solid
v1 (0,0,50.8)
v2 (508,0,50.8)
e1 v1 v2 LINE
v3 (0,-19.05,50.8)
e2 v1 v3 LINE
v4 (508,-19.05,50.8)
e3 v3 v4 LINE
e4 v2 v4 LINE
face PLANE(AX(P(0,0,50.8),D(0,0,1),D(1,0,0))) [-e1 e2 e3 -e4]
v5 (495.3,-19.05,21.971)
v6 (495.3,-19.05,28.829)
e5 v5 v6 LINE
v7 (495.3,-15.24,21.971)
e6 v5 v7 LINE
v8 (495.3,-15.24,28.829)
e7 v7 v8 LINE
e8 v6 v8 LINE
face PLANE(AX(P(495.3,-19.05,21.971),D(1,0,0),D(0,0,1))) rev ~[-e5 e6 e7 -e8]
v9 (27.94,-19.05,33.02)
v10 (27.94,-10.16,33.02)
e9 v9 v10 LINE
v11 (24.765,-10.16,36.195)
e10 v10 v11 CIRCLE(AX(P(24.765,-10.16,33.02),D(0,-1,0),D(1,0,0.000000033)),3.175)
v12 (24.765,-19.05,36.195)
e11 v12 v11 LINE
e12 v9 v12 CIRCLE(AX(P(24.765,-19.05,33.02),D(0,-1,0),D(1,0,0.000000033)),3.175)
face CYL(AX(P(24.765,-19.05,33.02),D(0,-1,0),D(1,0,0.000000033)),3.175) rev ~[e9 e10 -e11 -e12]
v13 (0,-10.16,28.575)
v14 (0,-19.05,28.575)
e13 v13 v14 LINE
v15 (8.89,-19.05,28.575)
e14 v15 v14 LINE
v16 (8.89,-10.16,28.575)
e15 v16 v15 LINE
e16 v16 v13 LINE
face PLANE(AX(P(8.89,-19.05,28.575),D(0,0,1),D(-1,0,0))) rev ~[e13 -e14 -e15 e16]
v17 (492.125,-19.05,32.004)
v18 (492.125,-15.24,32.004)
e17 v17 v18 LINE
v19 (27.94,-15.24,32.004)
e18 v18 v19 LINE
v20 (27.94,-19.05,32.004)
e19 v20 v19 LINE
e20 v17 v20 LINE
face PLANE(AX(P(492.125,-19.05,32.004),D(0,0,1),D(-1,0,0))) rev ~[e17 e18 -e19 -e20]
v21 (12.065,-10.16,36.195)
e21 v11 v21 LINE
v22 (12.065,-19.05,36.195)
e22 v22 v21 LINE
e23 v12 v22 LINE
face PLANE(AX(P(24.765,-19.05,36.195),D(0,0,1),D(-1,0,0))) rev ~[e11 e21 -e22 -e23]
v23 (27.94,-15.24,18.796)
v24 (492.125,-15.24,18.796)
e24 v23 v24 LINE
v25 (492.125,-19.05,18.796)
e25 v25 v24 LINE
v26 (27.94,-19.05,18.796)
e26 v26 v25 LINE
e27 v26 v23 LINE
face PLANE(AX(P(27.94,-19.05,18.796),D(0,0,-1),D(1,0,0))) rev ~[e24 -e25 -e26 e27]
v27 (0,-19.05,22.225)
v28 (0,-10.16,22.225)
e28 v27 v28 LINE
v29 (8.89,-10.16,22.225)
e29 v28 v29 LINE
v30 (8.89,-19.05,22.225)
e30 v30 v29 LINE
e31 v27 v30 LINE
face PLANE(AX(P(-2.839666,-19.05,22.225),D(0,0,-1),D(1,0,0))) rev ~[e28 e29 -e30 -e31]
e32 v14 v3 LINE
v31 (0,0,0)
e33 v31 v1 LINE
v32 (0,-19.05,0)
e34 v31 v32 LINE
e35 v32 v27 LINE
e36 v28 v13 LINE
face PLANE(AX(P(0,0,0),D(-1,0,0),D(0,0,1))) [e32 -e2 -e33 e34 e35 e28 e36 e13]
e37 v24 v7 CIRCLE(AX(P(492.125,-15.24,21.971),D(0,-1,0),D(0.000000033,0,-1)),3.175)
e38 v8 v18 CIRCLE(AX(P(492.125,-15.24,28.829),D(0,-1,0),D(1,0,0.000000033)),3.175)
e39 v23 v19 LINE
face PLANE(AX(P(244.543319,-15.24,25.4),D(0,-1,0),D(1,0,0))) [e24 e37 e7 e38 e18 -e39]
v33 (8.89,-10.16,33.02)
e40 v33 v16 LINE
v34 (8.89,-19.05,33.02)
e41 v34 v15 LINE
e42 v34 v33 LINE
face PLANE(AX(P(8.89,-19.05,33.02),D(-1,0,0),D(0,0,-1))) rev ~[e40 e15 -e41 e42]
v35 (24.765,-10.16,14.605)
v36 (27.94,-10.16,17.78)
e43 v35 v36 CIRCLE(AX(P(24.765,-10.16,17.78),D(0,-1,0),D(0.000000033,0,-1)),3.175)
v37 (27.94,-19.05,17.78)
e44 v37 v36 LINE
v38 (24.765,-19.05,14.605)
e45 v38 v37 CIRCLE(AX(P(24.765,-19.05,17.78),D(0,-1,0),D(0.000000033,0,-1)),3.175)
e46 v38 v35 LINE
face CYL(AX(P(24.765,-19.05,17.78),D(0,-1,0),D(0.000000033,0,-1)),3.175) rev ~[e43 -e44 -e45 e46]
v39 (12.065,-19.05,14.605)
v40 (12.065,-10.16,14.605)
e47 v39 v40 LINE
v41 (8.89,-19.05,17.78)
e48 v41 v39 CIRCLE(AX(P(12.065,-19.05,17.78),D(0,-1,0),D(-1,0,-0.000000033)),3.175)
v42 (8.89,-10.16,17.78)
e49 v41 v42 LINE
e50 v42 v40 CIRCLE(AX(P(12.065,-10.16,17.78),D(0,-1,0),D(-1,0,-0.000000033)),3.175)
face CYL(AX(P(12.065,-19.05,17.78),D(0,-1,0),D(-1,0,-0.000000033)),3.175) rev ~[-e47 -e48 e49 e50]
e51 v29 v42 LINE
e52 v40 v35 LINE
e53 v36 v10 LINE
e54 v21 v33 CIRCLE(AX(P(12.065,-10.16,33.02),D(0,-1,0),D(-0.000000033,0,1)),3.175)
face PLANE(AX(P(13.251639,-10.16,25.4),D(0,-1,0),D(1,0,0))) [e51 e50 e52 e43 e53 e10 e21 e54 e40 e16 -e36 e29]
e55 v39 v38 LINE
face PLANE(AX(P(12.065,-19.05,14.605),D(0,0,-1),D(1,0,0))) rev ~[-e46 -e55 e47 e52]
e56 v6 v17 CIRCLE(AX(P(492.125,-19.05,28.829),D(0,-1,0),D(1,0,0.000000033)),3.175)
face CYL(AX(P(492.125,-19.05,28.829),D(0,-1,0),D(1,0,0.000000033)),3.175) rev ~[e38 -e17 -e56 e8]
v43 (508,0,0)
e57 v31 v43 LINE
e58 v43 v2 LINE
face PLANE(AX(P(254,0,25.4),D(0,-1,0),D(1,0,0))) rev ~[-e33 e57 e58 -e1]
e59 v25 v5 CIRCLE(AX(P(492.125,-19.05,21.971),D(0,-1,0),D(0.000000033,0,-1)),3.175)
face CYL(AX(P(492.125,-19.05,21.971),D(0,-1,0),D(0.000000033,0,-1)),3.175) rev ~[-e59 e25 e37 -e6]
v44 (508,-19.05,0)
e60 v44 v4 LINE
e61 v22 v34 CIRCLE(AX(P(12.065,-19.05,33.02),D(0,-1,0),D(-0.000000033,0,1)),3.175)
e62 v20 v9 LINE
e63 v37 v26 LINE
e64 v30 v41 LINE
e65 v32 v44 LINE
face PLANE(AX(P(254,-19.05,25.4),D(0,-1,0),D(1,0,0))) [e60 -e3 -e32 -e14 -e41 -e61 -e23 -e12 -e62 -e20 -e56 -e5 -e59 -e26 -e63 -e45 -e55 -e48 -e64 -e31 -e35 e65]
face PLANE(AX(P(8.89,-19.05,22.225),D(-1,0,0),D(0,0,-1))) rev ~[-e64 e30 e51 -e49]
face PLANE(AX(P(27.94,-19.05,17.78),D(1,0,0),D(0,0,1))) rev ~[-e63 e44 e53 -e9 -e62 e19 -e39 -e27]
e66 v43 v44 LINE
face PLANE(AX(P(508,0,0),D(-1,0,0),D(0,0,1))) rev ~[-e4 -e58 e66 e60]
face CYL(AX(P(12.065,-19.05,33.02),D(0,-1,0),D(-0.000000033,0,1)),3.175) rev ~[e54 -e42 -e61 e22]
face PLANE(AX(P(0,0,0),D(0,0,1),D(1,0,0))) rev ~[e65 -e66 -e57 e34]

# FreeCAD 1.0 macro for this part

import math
import FreeCAD as App
import Part
import Sketcher

V = App.Vector
Q = App.Units.Quantity

doc = App.newDocument("Part")
params = doc.addObject("Spreadsheet::Sheet", "Params")
for row, (alias, value) in enumerate([
    ("sketch1_width", "20 in"),
    ("sketch1_height", "2 in"),
    ("pad1_length", "0.75 in"),
    ("sketch2_width", "0.5 in"),
    ("sketch2_radius", "0.125 in"),
    ("sketch2_width2", "0.35 in"),
    ("sketch2_height", "0.04 in"),
    ("sketch2_height2", "0.25 in"),
    ("pocket1_length", "0.15 in"),
    ("sketch3_width", "0.5 in"),
    ("sketch3_height", "0.6 in"),
    ("sketch3_radius", "0.125 in"),
    ("pocket2_length", "0.35 in"),
], start=1):
    params.set(f"A{row}", alias)
    params.set(f"B{row}", "=" + value)
    params.setAlias(f"B{row}", alias)

body = doc.addObject("PartDesign::Body", "Body")

# Sketch on XZ plane
sketch1 = body.newObject("Sketcher::SketchObject", "Sketch")
sketch1.AttachmentSupport = (doc.getObject("XZ_Plane"), [""])
sketch1.MapMode = "FlatFace"
sketch1.addGeometry(Part.LineSegment(V(0, 51, 0), V(0, 0, 0)), False)
sketch1.addGeometry(Part.LineSegment(V(0, 0, 0), V(508, 0, 0)), False)
sketch1.addGeometry(Part.LineSegment(V(508, 0, 0), V(508, 51, 0)), False)
sketch1.addGeometry(Part.LineSegment(V(508, 51, 0), V(0, 51, 0)), False)
sketch1.addConstraint(Sketcher.Constraint("Coincident", 0, 2, 1, 1))
sketch1.addConstraint(Sketcher.Constraint("Coincident", 1, 2, 2, 1))
sketch1.addConstraint(Sketcher.Constraint("Coincident", 2, 2, 3, 1))
sketch1.addConstraint(Sketcher.Constraint("Coincident", 3, 2, 0, 1))
sketch1.addConstraint(Sketcher.Constraint("Vertical", 0))
sketch1.addConstraint(Sketcher.Constraint("Horizontal", 1))
sketch1.addConstraint(Sketcher.Constraint("Vertical", 2))
sketch1.addConstraint(Sketcher.Constraint("Horizontal", 3))
sketch1.addConstraint(Sketcher.Constraint("Coincident", 0, 2, -1, 1))
sketch1.addConstraint(Sketcher.Constraint("DistanceX", 1, 1, 1, 2, Q("20 in")))
sketch1.addConstraint(Sketcher.Constraint("DistanceY", 0, 2, 0, 1, Q("2 in")))
sketch1.setExpression("Constraints[9]", "Params.sketch1_width")
sketch1.setExpression("Constraints[10]", "Params.sketch1_height")
pad1 = body.newObject("PartDesign::Pad", "Pad")
pad1.Profile = sketch1
pad1.setExpression("Length", "Params.pad1_length")

# Sketch on XZ plane
sketch2 = body.newObject("Sketcher::SketchObject", "Sketch001")
sketch2.AttachmentSupport = (doc.getObject("XZ_Plane"), [""])
sketch2.MapMode = "FlatFace"
sketch2.AttachmentOffset = App.Placement(V(0, 0, 0.75 * 25.4), App.Rotation())
sketch2.addGeometry(Part.LineSegment(V(492.1, 32, 0), V(27.9, 32, 0)), False)
sketch2.addGeometry(Part.LineSegment(V(27.9, 32, 0), V(27.9, 33, 0)), False)
sketch2.addGeometry(Part.ArcOfCircle(Part.Circle(V(24.8, 33, 0), V(0, 0, 1), 3.2), math.radians(0), math.radians(90)), False)
sketch2.addGeometry(Part.LineSegment(V(24.8, 36.2, 0), V(12.1, 36.2, 0)), False)
sketch2.addGeometry(Part.ArcOfCircle(Part.Circle(V(12.1, 33, 0), V(0, 0, 1), 3.2), math.radians(90), math.radians(180)), False)
sketch2.addGeometry(Part.LineSegment(V(8.9, 33, 0), V(8.9, 28.6, 0)), False)
sketch2.addGeometry(Part.LineSegment(V(8.9, 28.6, 0), V(0, 28.6, 0)), False)
sketch2.addGeometry(Part.LineSegment(V(0, 28.6, 0), V(0, 22.2, 0)), False)
sketch2.addGeometry(Part.LineSegment(V(0, 22.2, 0), V(8.9, 22.2, 0)), False)
sketch2.addGeometry(Part.LineSegment(V(8.9, 22.2, 0), V(8.9, 17.8, 0)), False)
sketch2.addGeometry(Part.ArcOfCircle(Part.Circle(V(12.1, 17.8, 0), V(0, 0, 1), 3.2), math.radians(-180), math.radians(-90)), False)
sketch2.addGeometry(Part.LineSegment(V(12.1, 14.6, 0), V(24.8, 14.6, 0)), False)
sketch2.addGeometry(Part.ArcOfCircle(Part.Circle(V(24.8, 17.8, 0), V(0, 0, 1), 3.2), math.radians(-90), math.radians(0)), False)
sketch2.addGeometry(Part.LineSegment(V(27.9, 17.8, 0), V(27.9, 18.8, 0)), False)
sketch2.addGeometry(Part.LineSegment(V(27.9, 18.8, 0), V(492.1, 18.8, 0)), False)
sketch2.addGeometry(Part.ArcOfCircle(Part.Circle(V(492.1, 22, 0), V(0, 0, 1), 3.2), math.radians(-90), math.radians(0)), False)
sketch2.addGeometry(Part.LineSegment(V(495.3, 22, 0), V(495.3, 28.8, 0)), False)
sketch2.addGeometry(Part.ArcOfCircle(Part.Circle(V(492.1, 28.8, 0), V(0, 0, 1), 3.2), math.radians(0), math.radians(90)), False)
sketch2.addConstraint(Sketcher.Constraint("Coincident", 0, 2, 1, 1))
sketch2.addConstraint(Sketcher.Constraint("Tangent", 1, 2, 2, 1))
sketch2.addConstraint(Sketcher.Constraint("Tangent", 2, 2, 3, 1))
sketch2.addConstraint(Sketcher.Constraint("Tangent", 3, 2, 4, 1))
sketch2.addConstraint(Sketcher.Constraint("Tangent", 4, 2, 5, 1))
sketch2.addConstraint(Sketcher.Constraint("Coincident", 5, 2, 6, 1))
sketch2.addConstraint(Sketcher.Constraint("Coincident", 6, 2, 7, 1))
sketch2.addConstraint(Sketcher.Constraint("Coincident", 7, 2, 8, 1))
sketch2.addConstraint(Sketcher.Constraint("Coincident", 8, 2, 9, 1))
sketch2.addConstraint(Sketcher.Constraint("Tangent", 9, 2, 10, 1))
sketch2.addConstraint(Sketcher.Constraint("Tangent", 10, 2, 11, 1))
sketch2.addConstraint(Sketcher.Constraint("Tangent", 11, 2, 12, 1))
sketch2.addConstraint(Sketcher.Constraint("Tangent", 12, 2, 13, 1))
sketch2.addConstraint(Sketcher.Constraint("Coincident", 13, 2, 14, 1))
sketch2.addConstraint(Sketcher.Constraint("Tangent", 14, 2, 15, 1))
sketch2.addConstraint(Sketcher.Constraint("Tangent", 15, 2, 16, 1))
sketch2.addConstraint(Sketcher.Constraint("Tangent", 16, 2, 17, 1))
sketch2.addConstraint(Sketcher.Constraint("Tangent", 17, 2, 0, 1))
sketch2.addConstraint(Sketcher.Constraint("Horizontal", 0))
sketch2.addConstraint(Sketcher.Constraint("Vertical", 1))
sketch2.addConstraint(Sketcher.Constraint("Horizontal", 3))
sketch2.addConstraint(Sketcher.Constraint("Vertical", 5))
sketch2.addConstraint(Sketcher.Constraint("Horizontal", 6))
sketch2.addConstraint(Sketcher.Constraint("Vertical", 7))
sketch2.addConstraint(Sketcher.Constraint("Horizontal", 8))
sketch2.addConstraint(Sketcher.Constraint("Vertical", 9))
sketch2.addConstraint(Sketcher.Constraint("Horizontal", 11))
sketch2.addConstraint(Sketcher.Constraint("Vertical", 13))
sketch2.addConstraint(Sketcher.Constraint("Horizontal", 14))
sketch2.addConstraint(Sketcher.Constraint("Vertical", 16))
sketch2.addConstraint(Sketcher.Constraint("Equal", 2, 4))
sketch2.addConstraint(Sketcher.Constraint("Equal", 4, 10))
sketch2.addConstraint(Sketcher.Constraint("Equal", 10, 12))
sketch2.addConstraint(Sketcher.Constraint("Equal", 12, 15))
sketch2.addConstraint(Sketcher.Constraint("Equal", 15, 17))
sketch2.addConstraint(Sketcher.Constraint("PointOnObject", 6, 2, -2))
sketch2.addConstraint(Sketcher.Constraint("Vertical", 4, 3, 10, 3))
sketch2.addConstraint(Sketcher.Constraint("Vertical", 2, 3, 12, 3))
sketch2.addConstraint(Sketcher.Constraint("Equal", 5, 9))
sketch2.addConstraint(Sketcher.Constraint("Equal", 1, 13))
sketch2.addConstraint(Sketcher.Constraint("DistanceX", 3, 2, 3, 1, Q("0.5 in")))
sketch2.addConstraint(Sketcher.Constraint("Radius", 2, Q("0.125 in")))
sketch2.addConstraint(Sketcher.Constraint("DistanceX", 6, 2, 6, 1, Q("0.35 in")))
sketch2.addConstraint(Sketcher.Constraint("DistanceY", 1, 1, 1, 2, Q("0.04 in")))
sketch2.addConstraint(Sketcher.Constraint("DistanceY", 7, 2, 7, 1, Q("0.25 in")))
sketch2.addConstraint(Sketcher.Constraint("DistanceY", 16, 1, 16, 2, Q("0.27 in")))
sketch2.addConstraint(Sketcher.Constraint("DistanceY", -1, 1, 2, 3, Q("1.3 in")))
sketch2.addConstraint(Sketcher.Constraint("DistanceX", -1, 1, 15, 2, Q("19.5 in")))
sketch2.setExpression("Constraints[40]", "Params.sketch2_width")
sketch2.setExpression("Constraints[41]", "Params.sketch2_radius")
sketch2.setExpression("Constraints[42]", "Params.sketch2_width2")
sketch2.setExpression("Constraints[43]", "Params.sketch2_height")
sketch2.setExpression("Constraints[44]", "Params.sketch2_height2")
pocket1 = body.newObject("PartDesign::Pocket", "Pocket")
pocket1.Profile = sketch2
pocket1.setExpression("Length", "Params.pocket1_length")

# Sketch on XZ plane
sketch3 = body.newObject("Sketcher::SketchObject", "Sketch002")
sketch3.AttachmentSupport = (doc.getObject("XZ_Plane"), [""])
sketch3.MapMode = "FlatFace"
sketch3.AttachmentOffset = App.Placement(V(0, 0, 0.75 * 25.4), App.Rotation())
sketch3.addGeometry(Part.LineSegment(V(12.1, 14.6, 0), V(24.8, 14.6, 0)), False)
sketch3.addGeometry(Part.ArcOfCircle(Part.Circle(V(24.8, 17.8, 0), V(0, 0, 1), 3.2), math.radians(-90), math.radians(0)), False)
sketch3.addGeometry(Part.LineSegment(V(27.9, 17.8, 0), V(27.9, 33, 0)), False)
sketch3.addGeometry(Part.ArcOfCircle(Part.Circle(V(24.8, 33, 0), V(0, 0, 1), 3.2), math.radians(0), math.radians(90)), False)
sketch3.addGeometry(Part.LineSegment(V(24.8, 36.2, 0), V(12.1, 36.2, 0)), False)
sketch3.addGeometry(Part.ArcOfCircle(Part.Circle(V(12.1, 33, 0), V(0, 0, 1), 3.2), math.radians(90), math.radians(180)), False)
sketch3.addGeometry(Part.LineSegment(V(8.9, 33, 0), V(8.9, 28.6, 0)), False)
sketch3.addGeometry(Part.LineSegment(V(8.9, 28.6, 0), V(-2.8, 28.6, 0)), False)
sketch3.addGeometry(Part.ArcOfCircle(Part.Circle(V(-2.8, 25.4, 0), V(0, 0, 1), 3.2), math.radians(90), math.radians(180)), False)
sketch3.addGeometry(Part.ArcOfCircle(Part.Circle(V(-2.8, 25.4, 0), V(0, 0, 1), 3.2), math.radians(-180), math.radians(-90)), False)
sketch3.addGeometry(Part.LineSegment(V(-2.8, 22.2, 0), V(8.9, 22.2, 0)), False)
sketch3.addGeometry(Part.LineSegment(V(8.9, 22.2, 0), V(8.9, 17.8, 0)), False)
sketch3.addGeometry(Part.ArcOfCircle(Part.Circle(V(12.1, 17.8, 0), V(0, 0, 1), 3.2), math.radians(-180), math.radians(-90)), False)
sketch3.addConstraint(Sketcher.Constraint("Tangent", 0, 2, 1, 1))
sketch3.addConstraint(Sketcher.Constraint("Tangent", 1, 2, 2, 1))
sketch3.addConstraint(Sketcher.Constraint("Tangent", 2, 2, 3, 1))
sketch3.addConstraint(Sketcher.Constraint("Tangent", 3, 2, 4, 1))
sketch3.addConstraint(Sketcher.Constraint("Tangent", 4, 2, 5, 1))
sketch3.addConstraint(Sketcher.Constraint("Tangent", 5, 2, 6, 1))
sketch3.addConstraint(Sketcher.Constraint("Coincident", 6, 2, 7, 1))
sketch3.addConstraint(Sketcher.Constraint("Tangent", 7, 2, 8, 1))
sketch3.addConstraint(Sketcher.Constraint("Tangent", 8, 2, 9, 1))
sketch3.addConstraint(Sketcher.Constraint("Tangent", 9, 2, 10, 1))
sketch3.addConstraint(Sketcher.Constraint("Coincident", 10, 2, 11, 1))
sketch3.addConstraint(Sketcher.Constraint("Tangent", 11, 2, 12, 1))
sketch3.addConstraint(Sketcher.Constraint("Tangent", 12, 2, 0, 1))
sketch3.addConstraint(Sketcher.Constraint("Horizontal", 0))
sketch3.addConstraint(Sketcher.Constraint("Vertical", 2))
sketch3.addConstraint(Sketcher.Constraint("Horizontal", 4))
sketch3.addConstraint(Sketcher.Constraint("Vertical", 6))
sketch3.addConstraint(Sketcher.Constraint("Horizontal", 7))
sketch3.addConstraint(Sketcher.Constraint("Horizontal", 10))
sketch3.addConstraint(Sketcher.Constraint("Vertical", 11))
sketch3.addConstraint(Sketcher.Constraint("Equal", 1, 3))
sketch3.addConstraint(Sketcher.Constraint("Equal", 3, 5))
sketch3.addConstraint(Sketcher.Constraint("Equal", 5, 8))
sketch3.addConstraint(Sketcher.Constraint("Equal", 8, 9))
sketch3.addConstraint(Sketcher.Constraint("Equal", 9, 12))
sketch3.addConstraint(Sketcher.Constraint("Horizontal", 9, 3, 8, 2))
sketch3.addConstraint(Sketcher.Constraint("Vertical", 5, 3, 12, 3))
sketch3.addConstraint(Sketcher.Constraint("Equal", 6, 11))
sketch3.addConstraint(Sketcher.Constraint("DistanceX", 0, 1, 0, 2, Q("0.5 in")))
sketch3.addConstraint(Sketcher.Constraint("DistanceY", 2, 1, 2, 2, Q("0.6 in")))
sketch3.addConstraint(Sketcher.Constraint("DistanceY", -1, 1, 8, 3, Q("1 in")))
sketch3.addConstraint(Sketcher.Constraint("Radius", 1, Q("0.125 in")))
sketch3.addConstraint(Sketcher.Constraint("DistanceX", -1, 1, 1, 2, Q("1.1 in")))
sketch3.addConstraint(Sketcher.Constraint("DistanceX", 7, 2, 7, 1, 11.729666))
sketch3.setExpression("Constraints[28]", "Params.sketch3_width")
sketch3.setExpression("Constraints[29]", "Params.sketch3_height")
sketch3.setExpression("Constraints[31]", "Params.sketch3_radius")
pocket2 = body.newObject("PartDesign::Pocket", "Pocket001")
pocket2.Profile = sketch3
pocket2.setExpression("Length", "Params.pocket2_length")

doc.recompute()
